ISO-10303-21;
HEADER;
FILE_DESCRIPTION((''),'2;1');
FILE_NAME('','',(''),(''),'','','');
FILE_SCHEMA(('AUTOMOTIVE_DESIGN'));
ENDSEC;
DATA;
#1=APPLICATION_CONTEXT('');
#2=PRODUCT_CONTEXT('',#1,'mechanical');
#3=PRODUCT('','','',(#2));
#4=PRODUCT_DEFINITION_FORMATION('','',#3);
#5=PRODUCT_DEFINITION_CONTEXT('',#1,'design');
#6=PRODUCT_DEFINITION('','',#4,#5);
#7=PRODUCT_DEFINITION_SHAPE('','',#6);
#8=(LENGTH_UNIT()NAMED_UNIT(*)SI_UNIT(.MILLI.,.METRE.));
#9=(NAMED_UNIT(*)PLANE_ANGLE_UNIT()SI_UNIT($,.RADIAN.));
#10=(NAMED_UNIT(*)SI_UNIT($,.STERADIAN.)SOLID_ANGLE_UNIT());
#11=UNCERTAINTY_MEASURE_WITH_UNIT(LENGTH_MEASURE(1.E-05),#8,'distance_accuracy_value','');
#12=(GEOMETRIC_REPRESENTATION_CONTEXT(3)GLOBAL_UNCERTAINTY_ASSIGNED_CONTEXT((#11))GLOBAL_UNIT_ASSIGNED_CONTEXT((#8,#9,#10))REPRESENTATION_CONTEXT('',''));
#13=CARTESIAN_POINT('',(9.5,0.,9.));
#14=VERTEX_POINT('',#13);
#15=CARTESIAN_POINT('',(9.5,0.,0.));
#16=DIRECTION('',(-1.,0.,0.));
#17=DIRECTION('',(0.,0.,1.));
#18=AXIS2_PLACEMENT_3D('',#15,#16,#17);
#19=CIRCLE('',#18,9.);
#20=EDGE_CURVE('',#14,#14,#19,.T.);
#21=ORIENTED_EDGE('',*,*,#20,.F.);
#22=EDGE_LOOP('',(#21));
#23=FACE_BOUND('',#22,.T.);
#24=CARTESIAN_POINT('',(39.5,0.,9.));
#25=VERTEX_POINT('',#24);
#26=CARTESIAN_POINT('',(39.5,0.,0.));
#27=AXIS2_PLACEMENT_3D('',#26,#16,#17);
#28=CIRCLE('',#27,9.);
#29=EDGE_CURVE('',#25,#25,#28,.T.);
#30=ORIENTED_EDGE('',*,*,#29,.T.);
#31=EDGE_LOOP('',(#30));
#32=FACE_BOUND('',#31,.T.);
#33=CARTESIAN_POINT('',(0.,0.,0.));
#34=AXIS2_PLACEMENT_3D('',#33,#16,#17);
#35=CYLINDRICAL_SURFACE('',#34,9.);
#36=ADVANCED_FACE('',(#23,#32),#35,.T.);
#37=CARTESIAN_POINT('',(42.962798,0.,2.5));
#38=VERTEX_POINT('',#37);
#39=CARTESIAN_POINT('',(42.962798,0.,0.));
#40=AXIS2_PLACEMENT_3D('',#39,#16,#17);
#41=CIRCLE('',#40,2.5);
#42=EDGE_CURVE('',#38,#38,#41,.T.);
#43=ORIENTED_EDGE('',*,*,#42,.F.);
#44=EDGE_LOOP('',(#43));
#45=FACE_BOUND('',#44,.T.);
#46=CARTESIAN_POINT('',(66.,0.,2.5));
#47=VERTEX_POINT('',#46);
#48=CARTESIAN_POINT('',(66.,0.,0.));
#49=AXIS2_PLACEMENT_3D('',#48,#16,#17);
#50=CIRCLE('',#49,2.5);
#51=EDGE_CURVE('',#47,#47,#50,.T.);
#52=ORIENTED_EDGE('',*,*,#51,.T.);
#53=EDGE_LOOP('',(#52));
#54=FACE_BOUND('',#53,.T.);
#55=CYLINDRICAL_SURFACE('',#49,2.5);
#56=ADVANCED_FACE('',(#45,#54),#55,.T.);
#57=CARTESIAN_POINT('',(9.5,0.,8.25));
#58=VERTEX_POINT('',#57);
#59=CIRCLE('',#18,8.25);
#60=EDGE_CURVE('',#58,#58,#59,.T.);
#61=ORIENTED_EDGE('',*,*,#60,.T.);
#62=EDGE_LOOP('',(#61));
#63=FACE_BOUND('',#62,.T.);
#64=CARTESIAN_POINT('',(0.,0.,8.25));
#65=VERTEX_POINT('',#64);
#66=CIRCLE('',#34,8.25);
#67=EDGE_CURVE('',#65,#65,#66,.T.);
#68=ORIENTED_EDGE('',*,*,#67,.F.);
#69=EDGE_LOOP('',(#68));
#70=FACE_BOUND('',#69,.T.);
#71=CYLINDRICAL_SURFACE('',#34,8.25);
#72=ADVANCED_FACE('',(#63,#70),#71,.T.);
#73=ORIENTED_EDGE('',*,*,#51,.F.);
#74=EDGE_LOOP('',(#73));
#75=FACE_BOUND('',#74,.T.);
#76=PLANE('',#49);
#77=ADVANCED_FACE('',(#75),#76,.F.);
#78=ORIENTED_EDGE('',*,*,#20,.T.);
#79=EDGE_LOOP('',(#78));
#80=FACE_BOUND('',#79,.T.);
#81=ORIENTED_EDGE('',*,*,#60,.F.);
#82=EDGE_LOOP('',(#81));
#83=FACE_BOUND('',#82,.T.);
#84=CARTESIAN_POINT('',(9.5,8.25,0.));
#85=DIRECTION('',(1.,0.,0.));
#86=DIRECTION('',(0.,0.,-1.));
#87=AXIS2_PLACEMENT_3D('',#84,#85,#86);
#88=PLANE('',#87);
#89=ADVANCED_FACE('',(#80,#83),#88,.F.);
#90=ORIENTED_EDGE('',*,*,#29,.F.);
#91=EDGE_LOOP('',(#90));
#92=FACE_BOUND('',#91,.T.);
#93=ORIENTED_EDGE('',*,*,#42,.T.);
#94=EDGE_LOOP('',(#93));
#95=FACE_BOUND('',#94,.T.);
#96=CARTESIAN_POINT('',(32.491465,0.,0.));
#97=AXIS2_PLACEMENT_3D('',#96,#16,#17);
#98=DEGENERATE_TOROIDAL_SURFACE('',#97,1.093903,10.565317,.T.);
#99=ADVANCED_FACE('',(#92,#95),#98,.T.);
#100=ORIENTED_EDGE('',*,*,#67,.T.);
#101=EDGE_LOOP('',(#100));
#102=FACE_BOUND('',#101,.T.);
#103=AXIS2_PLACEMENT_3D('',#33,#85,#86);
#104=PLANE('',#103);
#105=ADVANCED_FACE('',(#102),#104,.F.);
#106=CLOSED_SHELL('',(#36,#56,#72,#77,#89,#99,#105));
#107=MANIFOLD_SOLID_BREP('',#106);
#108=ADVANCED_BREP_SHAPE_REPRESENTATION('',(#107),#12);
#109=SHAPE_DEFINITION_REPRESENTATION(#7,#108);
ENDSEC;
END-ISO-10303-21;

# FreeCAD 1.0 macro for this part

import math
import FreeCAD as App
import Part
import Sketcher
from FreeCAD import Vector
Q = App.Units.Quantity

doc = App.newDocument("Part")
body = doc.addObject("PartDesign::Body", "Body")

sketch1 = body.newObject("Sketcher::SketchObject", "Sketch")
sketch1.AttachmentSupport = (doc.getObject("XY_Plane"), [""])
sketch1.MapMode = "FlatFace"
sketch1.addGeometry([
    Part.LineSegment(Vector(0, 8.2, 0), Vector(0, 0, 0)),
    Part.LineSegment(Vector(0, 0, 0), Vector(43, 0, 0)),
    Part.ArcOfCircle(Part.Circle(Vector(32.5, 1.1, 0), Vector(0, 0, 1), 10.6), math.radians(-6), math.radians(48)),
    Part.LineSegment(Vector(39.5, 9, 0), Vector(9.5, 9, 0)),
    Part.LineSegment(Vector(9.5, 9, 0), Vector(9.5, 8.2, 0)),
    Part.LineSegment(Vector(9.5, 8.2, 0), Vector(0, 8.2, 0)),
], False)
sketch1.addConstraint([
    Sketcher.Constraint("Coincident", 0, 2, 1, 1),
    Sketcher.Constraint("Coincident", 1, 2, 2, 1),
    Sketcher.Constraint("Coincident", 2, 2, 3, 1),
    Sketcher.Constraint("Coincident", 3, 2, 4, 1),
    Sketcher.Constraint("Coincident", 4, 2, 5, 1),
    Sketcher.Constraint("Coincident", 5, 2, 0, 1),
    Sketcher.Constraint("Vertical", 0),
    Sketcher.Constraint("Horizontal", 1),
    Sketcher.Constraint("Horizontal", 3),
    Sketcher.Constraint("Vertical", 4),
    Sketcher.Constraint("Horizontal", 5),
    Sketcher.Constraint("Coincident", 0, 2, -1, 1),
    Sketcher.Constraint("DistanceX", 1, 1, 1, 2, Q("43 mm")),
    Sketcher.Constraint("DistanceX", 3, 2, 3, 1, Q("30 mm")),
    Sketcher.Constraint("DistanceX", 5, 2, 5, 1, Q("9.5 mm")),
    Sketcher.Constraint("DistanceY", -1, 1, 2, 2, Q("9 mm")),
    Sketcher.Constraint("DistanceY", 0, 2, 0, 1, Q("8.25 mm")),
    Sketcher.Constraint("Radius", 2, Q("10.565317 mm")),
])
revolution = body.newObject("PartDesign::Revolution", "Revolution")
revolution.Profile = sketch1
revolution.ReferenceAxis = (sketch1, ["H_Axis"])
revolution.Angle = 360

sketch2 = body.newObject("Sketcher::SketchObject", "Sketch001")
sketch2.AttachmentSupport = (doc.getObject("YZ_Plane"), [""])
sketch2.MapMode = "FlatFace"
sketch2.addGeometry(Part.Circle(Vector(0, 0, 0), Vector(0, 0, 1), 2.5), False)
sketch2.addConstraint([
    Sketcher.Constraint("Coincident", 0, 3, -1, 1),
    Sketcher.Constraint("Diameter", 0, Q("5 mm")),
])
pad1 = body.newObject("PartDesign::Pad", "Pad")
pad1.Profile = sketch2
pad1.Length = 66

doc.recompute()
